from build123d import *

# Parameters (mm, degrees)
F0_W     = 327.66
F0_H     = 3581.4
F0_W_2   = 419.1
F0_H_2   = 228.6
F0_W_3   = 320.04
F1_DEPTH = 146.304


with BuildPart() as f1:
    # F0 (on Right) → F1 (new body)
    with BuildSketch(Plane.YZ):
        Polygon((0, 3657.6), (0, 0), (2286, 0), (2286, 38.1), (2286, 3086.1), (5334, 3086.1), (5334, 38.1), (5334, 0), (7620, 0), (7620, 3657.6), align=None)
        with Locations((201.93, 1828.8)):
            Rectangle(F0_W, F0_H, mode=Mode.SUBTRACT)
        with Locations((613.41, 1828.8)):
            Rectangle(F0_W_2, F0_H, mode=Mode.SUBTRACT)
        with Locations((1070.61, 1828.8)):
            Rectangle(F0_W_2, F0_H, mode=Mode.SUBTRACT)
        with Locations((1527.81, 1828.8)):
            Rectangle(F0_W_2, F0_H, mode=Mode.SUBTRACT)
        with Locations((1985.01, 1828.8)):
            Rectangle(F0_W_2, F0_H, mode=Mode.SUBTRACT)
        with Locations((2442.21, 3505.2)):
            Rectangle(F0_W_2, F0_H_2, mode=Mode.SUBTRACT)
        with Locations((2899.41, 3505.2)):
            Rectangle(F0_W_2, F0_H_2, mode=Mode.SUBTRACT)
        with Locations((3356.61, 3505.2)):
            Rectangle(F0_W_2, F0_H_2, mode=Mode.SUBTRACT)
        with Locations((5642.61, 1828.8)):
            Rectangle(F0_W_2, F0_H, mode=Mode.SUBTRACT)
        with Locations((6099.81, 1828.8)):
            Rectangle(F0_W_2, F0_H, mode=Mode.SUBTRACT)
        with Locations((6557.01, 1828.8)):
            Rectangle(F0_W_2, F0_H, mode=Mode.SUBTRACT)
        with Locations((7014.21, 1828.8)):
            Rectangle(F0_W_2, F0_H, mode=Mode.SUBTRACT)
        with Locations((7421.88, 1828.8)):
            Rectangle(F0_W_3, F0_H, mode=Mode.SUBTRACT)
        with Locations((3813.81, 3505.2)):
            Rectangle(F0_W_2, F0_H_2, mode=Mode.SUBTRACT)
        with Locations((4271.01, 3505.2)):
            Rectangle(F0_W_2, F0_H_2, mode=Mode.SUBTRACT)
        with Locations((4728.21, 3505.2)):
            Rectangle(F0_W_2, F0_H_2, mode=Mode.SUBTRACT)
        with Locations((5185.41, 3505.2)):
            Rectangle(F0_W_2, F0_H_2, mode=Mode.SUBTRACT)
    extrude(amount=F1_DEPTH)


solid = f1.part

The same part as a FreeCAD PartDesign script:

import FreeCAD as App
import Part
import Sketcher
from FreeCAD import Vector
Q = App.Units.Quantity


def add_polygon(sketch, points):
    """Adds a closed chain of lines whose ends are joined by coincident constraints."""
    first, n = sketch.GeometryCount, len(points)
    for a, b in zip(points, points[1:] + points[:1]):
        sketch.addGeometry(Part.LineSegment(App.Vector(*a, 0), App.Vector(*b, 0)), False)
    for i in range(n):
        sketch.addConstraint(Sketcher.Constraint("Coincident", first + i, 2, first + (i + 1) % n, 1))

doc = App.newDocument("Part")
params = doc.addObject("Spreadsheet::Sheet", "Params")
for row, (alias, value) in enumerate([
    ("sketch1_width", "90 in"),
    ("sketch1_width2", "120 in"),
    ("sketch1_height", "144 in"),
    ("sketch1_height2", "141 in"),
    ("sketch1_height3", "9 in"),
    ("pad1_length", "5.76 in"),
], start=1):
    params.set(f"A{row}", alias)
    params.set(f"B{row}", "=" + value)
    params.setAlias(f"B{row}", alias)

body = doc.addObject("PartDesign::Body", "Body")

sketch1 = body.newObject("Sketcher::SketchObject", "Sketch")
sketch1.AttachmentSupport = (doc.getObject("YZ_Plane"), [""])
sketch1.MapMode = "FlatFace"
add_polygon(sketch1, [(0, 3658), (0, 0), (2286, 0), (2286, 3086), (5334, 3086), (5334, 0), (7620, 0), (7620, 3658)])
add_polygon(sketch1, [(366, 38), (38, 38), (38, 3620), (366, 3620)])
add_polygon(sketch1, [(823, 38), (404, 38), (404, 3620), (823, 3620)])
add_polygon(sketch1, [(1280, 38), (861, 38), (861, 3620), (1280, 3620)])
add_polygon(sketch1, [(1737, 38), (1318, 38), (1318, 3620), (1737, 3620)])
add_polygon(sketch1, [(2195, 38), (1775, 38), (1775, 3620), (2195, 3620)])
add_polygon(sketch1, [(2652, 3391), (2233, 3391), (2233, 3620), (2652, 3620)])
add_polygon(sketch1, [(3109, 3391), (2690, 3391), (2690, 3620), (3109, 3620)])
add_polygon(sketch1, [(3566, 3391), (3147, 3391), (3147, 3620), (3566, 3620)])
add_polygon(sketch1, [(5852, 38), (5433, 38), (5433, 3620), (5852, 3620)])
add_polygon(sketch1, [(6309, 38), (5890, 38), (5890, 3620), (6309, 3620)])
add_polygon(sketch1, [(6767, 38), (6347, 38), (6347, 3620), (6767, 3620)])
add_polygon(sketch1, [(7224, 38), (6805, 38), (6805, 3620), (7224, 3620)])
add_polygon(sketch1, [(7582, 38), (7262, 38), (7262, 3620), (7582, 3620)])
add_polygon(sketch1, [(4023, 3391), (3604, 3391), (3604, 3620), (4023, 3620)])
add_polygon(sketch1, [(4481, 3391), (4061, 3391), (4061, 3620), (4481, 3620)])
add_polygon(sketch1, [(4938, 3391), (4519, 3391), (4519, 3620), (4938, 3620)])
add_polygon(sketch1, [(5395, 3391), (4976, 3391), (4976, 3620), (5395, 3620)])
sketch1.addConstraint(Sketcher.Constraint("Vertical", 0))
sketch1.addConstraint(Sketcher.Constraint("Horizontal", 1))
sketch1.addConstraint(Sketcher.Constraint("Vertical", 2))
sketch1.addConstraint(Sketcher.Constraint("Horizontal", 3))
sketch1.addConstraint(Sketcher.Constraint("Vertical", 4))
sketch1.addConstraint(Sketcher.Constraint("Horizontal", 5))
sketch1.addConstraint(Sketcher.Constraint("Vertical", 6))
sketch1.addConstraint(Sketcher.Constraint("Horizontal", 7))
sketch1.addConstraint(Sketcher.Constraint("Horizontal", 8))
sketch1.addConstraint(Sketcher.Constraint("Vertical", 9))
sketch1.addConstraint(Sketcher.Constraint("Horizontal", 10))
sketch1.addConstraint(Sketcher.Constraint("Vertical", 11))
sketch1.addConstraint(Sketcher.Constraint("Horizontal", 12))
sketch1.addConstraint(Sketcher.Constraint("Vertical", 13))
sketch1.addConstraint(Sketcher.Constraint("Horizontal", 14))
sketch1.addConstraint(Sketcher.Constraint("Vertical", 15))
sketch1.addConstraint(Sketcher.Constraint("Horizontal", 16))
sketch1.addConstraint(Sketcher.Constraint("Vertical", 17))
sketch1.addConstraint(Sketcher.Constraint("Horizontal", 18))
sketch1.addConstraint(Sketcher.Constraint("Vertical", 19))
sketch1.addConstraint(Sketcher.Constraint("Horizontal", 20))
sketch1.addConstraint(Sketcher.Constraint("Vertical", 21))
sketch1.addConstraint(Sketcher.Constraint("Horizontal", 22))
sketch1.addConstraint(Sketcher.Constraint("Vertical", 23))
sketch1.addConstraint(Sketcher.Constraint("Horizontal", 24))
sketch1.addConstraint(Sketcher.Constraint("Vertical", 25))
sketch1.addConstraint(Sketcher.Constraint("Horizontal", 26))
sketch1.addConstraint(Sketcher.Constraint("Vertical", 27))
sketch1.addConstraint(Sketcher.Constraint("Horizontal", 28))
sketch1.addConstraint(Sketcher.Constraint("Vertical", 29))
sketch1.addConstraint(Sketcher.Constraint("Horizontal", 30))
sketch1.addConstraint(Sketcher.Constraint("Vertical", 31))
sketch1.addConstraint(Sketcher.Constraint("Horizontal", 32))
sketch1.addConstraint(Sketcher.Constraint("Vertical", 33))
sketch1.addConstraint(Sketcher.Constraint("Horizontal", 34))
sketch1.addConstraint(Sketcher.Constraint("Vertical", 35))
sketch1.addConstraint(Sketcher.Constraint("Horizontal", 36))
sketch1.addConstraint(Sketcher.Constraint("Vertical", 37))
sketch1.addConstraint(Sketcher.Constraint("Horizontal", 38))
sketch1.addConstraint(Sketcher.Constraint("Vertical", 39))
sketch1.addConstraint(Sketcher.Constraint("Horizontal", 40))
sketch1.addConstraint(Sketcher.Constraint("Vertical", 41))
sketch1.addConstraint(Sketcher.Constraint("Horizontal", 42))
sketch1.addConstraint(Sketcher.Constraint("Vertical", 43))
sketch1.addConstraint(Sketcher.Constraint("Horizontal", 44))
sketch1.addConstraint(Sketcher.Constraint("Vertical", 45))
sketch1.addConstraint(Sketcher.Constraint("Horizontal", 46))
sketch1.addConstraint(Sketcher.Constraint("Vertical", 47))
sketch1.addConstraint(Sketcher.Constraint("Horizontal", 48))
sketch1.addConstraint(Sketcher.Constraint("Vertical", 49))
sketch1.addConstraint(Sketcher.Constraint("Horizontal", 50))
sketch1.addConstraint(Sketcher.Constraint("Vertical", 51))
sketch1.addConstraint(Sketcher.Constraint("Horizontal", 52))
sketch1.addConstraint(Sketcher.Constraint("Vertical", 53))
sketch1.addConstraint(Sketcher.Constraint("Horizontal", 54))
sketch1.addConstraint(Sketcher.Constraint("Vertical", 55))
sketch1.addConstraint(Sketcher.Constraint("Horizontal", 56))
sketch1.addConstraint(Sketcher.Constraint("Vertical", 57))
sketch1.addConstraint(Sketcher.Constraint("Horizontal", 58))
sketch1.addConstraint(Sketcher.Constraint("Vertical", 59))
sketch1.addConstraint(Sketcher.Constraint("Horizontal", 60))
sketch1.addConstraint(Sketcher.Constraint("Vertical", 61))
sketch1.addConstraint(Sketcher.Constraint("Horizontal", 62))
sketch1.addConstraint(Sketcher.Constraint("Vertical", 63))
sketch1.addConstraint(Sketcher.Constraint("Horizontal", 64))
sketch1.addConstraint(Sketcher.Constraint("Vertical", 65))
sketch1.addConstraint(Sketcher.Constraint("Horizontal", 66))
sketch1.addConstraint(Sketcher.Constraint("Vertical", 67))
sketch1.addConstraint(Sketcher.Constraint("Horizontal", 68))
sketch1.addConstraint(Sketcher.Constraint("Vertical", 69))
sketch1.addConstraint(Sketcher.Constraint("Horizontal", 70))
sketch1.addConstraint(Sketcher.Constraint("Vertical", 71))
sketch1.addConstraint(Sketcher.Constraint("Horizontal", 72))
sketch1.addConstraint(Sketcher.Constraint("Vertical", 73))
sketch1.addConstraint(Sketcher.Constraint("Horizontal", 74))
sketch1.addConstraint(Sketcher.Constraint("Vertical", 75))
sketch1.addConstraint(Sketcher.Constraint("Coincident", 0, 2, -1, 1))
sketch1.addConstraint(Sketcher.Constraint("PointOnObject", 4, 2, -1))
sketch1.addConstraint(Sketcher.Constraint("Horizontal", 11, 2, 12, 2))
sketch1.addConstraint(Sketcher.Constraint("Horizontal", 10, 2, 13, 2))
sketch1.addConstraint(Sketcher.Constraint("Horizontal", 15, 2, 16, 2))
sketch1.addConstraint(Sketcher.Constraint("Horizontal", 14, 2, 17, 2))
sketch1.addConstraint(Sketcher.Constraint("Horizontal", 19, 2, 20, 2))
sketch1.addConstraint(Sketcher.Constraint("Horizontal", 18, 2, 21, 2))
sketch1.addConstraint(Sketcher.Constraint("Horizontal", 23, 2, 24, 2))
sketch1.addConstraint(Sketcher.Constraint("Horizontal", 22, 2, 25, 2))
sketch1.addConstraint(Sketcher.Constraint("Horizontal", 26, 2, 29, 2))
sketch1.addConstraint(Sketcher.Constraint("Horizontal", 31, 2, 32, 2))
sketch1.addConstraint(Sketcher.Constraint("Horizontal", 30, 2, 33, 2))
sketch1.addConstraint(Sketcher.Constraint("Horizontal", 35, 2, 36, 2))
sketch1.addConstraint(Sketcher.Constraint("Horizontal", 34, 2, 37, 2))
sketch1.addConstraint(Sketcher.Constraint("Horizontal", 27, 2, 40, 2))
sketch1.addConstraint(Sketcher.Constraint("Horizontal", 38, 2, 41, 2))
sketch1.addConstraint(Sketcher.Constraint("Horizontal", 43, 2, 44, 2))
sketch1.addConstraint(Sketcher.Constraint("Horizontal", 42, 2, 45, 2))
sketch1.addConstraint(Sketcher.Constraint("Horizontal", 47, 2, 48, 2))
sketch1.addConstraint(Sketcher.Constraint("Horizontal", 46, 2, 49, 2))
sketch1.addConstraint(Sketcher.Constraint("Horizontal", 51, 2, 52, 2))
sketch1.addConstraint(Sketcher.Constraint("Horizontal", 50, 2, 53, 2))
sketch1.addConstraint(Sketcher.Constraint("Horizontal", 55, 2, 56, 2))
sketch1.addConstraint(Sketcher.Constraint("Horizontal", 54, 2, 57, 2))
sketch1.addConstraint(Sketcher.Constraint("Horizontal", 39, 2, 60, 2))
sketch1.addConstraint(Sketcher.Constraint("Horizontal", 58, 2, 61, 2))
sketch1.addConstraint(Sketcher.Constraint("Horizontal", 63, 2, 64, 2))
sketch1.addConstraint(Sketcher.Constraint("Horizontal", 62, 2, 65, 2))
sketch1.addConstraint(Sketcher.Constraint("Horizontal", 67, 2, 68, 2))
sketch1.addConstraint(Sketcher.Constraint("Horizontal", 66, 2, 69, 2))
sketch1.addConstraint(Sketcher.Constraint("Horizontal", 71, 2, 72, 2))
sketch1.addConstraint(Sketcher.Constraint("Horizontal", 70, 2, 73, 2))
sketch1.addConstraint(Sketcher.Constraint("Equal", 1, 5))
sketch1.addConstraint(Sketcher.Constraint("Equal", 14, 16))
sketch1.addConstraint(Sketcher.Constraint("Equal", 18, 20))
sketch1.addConstraint(Sketcher.Constraint("Equal", 22, 24))
sketch1.addConstraint(Sketcher.Constraint("Equal", 26, 28))
sketch1.addConstraint(Sketcher.Constraint("Equal", 30, 32))
sketch1.addConstraint(Sketcher.Constraint("Equal", 34, 36))
sketch1.addConstraint(Sketcher.Constraint("Equal", 38, 40))
sketch1.addConstraint(Sketcher.Constraint("Equal", 42, 44))
sketch1.addConstraint(Sketcher.Constraint("Equal", 46, 48))
sketch1.addConstraint(Sketcher.Constraint("Equal", 50, 52))
sketch1.addConstraint(Sketcher.Constraint("Equal", 54, 60))
sketch1.addConstraint(Sketcher.Constraint("Equal", 62, 64))
sketch1.addConstraint(Sketcher.Constraint("Equal", 66, 68))
sketch1.addConstraint(Sketcher.Constraint("Equal", 70, 72))
sketch1.addConstraint(Sketcher.Constraint("DistanceX", 1, 1, 1, 2, Q("90 in")))
sketch1.addConstraint(Sketcher.Constraint("DistanceX", 3, 1, 3, 2, Q("120 in")))
sketch1.addConstraint(Sketcher.Constraint("DistanceY", 0, 2, 0, 1, Q("144 in")))
sketch1.addConstraint(Sketcher.Constraint("DistanceY", 9, 1, 9, 2, Q("141 in")))
sketch1.addConstraint(Sketcher.Constraint("DistanceY", 29, 1, 29, 2, Q("9 in")))
sketch1.addConstraint(Sketcher.Constraint("DistanceX", 8, 2, 8, 1, Q("12.9 in")))
sketch1.addConstraint(Sketcher.Constraint("DistanceX", 12, 2, 12, 1, Q("16.5 in")))
sketch1.addConstraint(Sketcher.Constraint("DistanceX", 56, 2, 56, 1, Q("12.6 in")))
sketch1.addConstraint(Sketcher.Constraint("DistanceY", 2, 1, 2, 2, Q("121.5 in")))
sketch1.addConstraint(Sketcher.Constraint("DistanceX", -1, 1, 8, 2, Q("1.5 in")))
sketch1.addConstraint(Sketcher.Constraint("DistanceY", -1, 1, 8, 2, Q("1.5 in")))
sketch1.addConstraint(Sketcher.Constraint("DistanceX", -1, 1, 12, 2, Q("15.9 in")))
sketch1.addConstraint(Sketcher.Constraint("DistanceX", -1, 1, 16, 2, Q("33.9 in")))
sketch1.addConstraint(Sketcher.Constraint("DistanceX", -1, 1, 20, 2, Q("51.9 in")))
sketch1.addConstraint(Sketcher.Constraint("DistanceX", -1, 1, 24, 2, Q("69.9 in")))
sketch1.addConstraint(Sketcher.Constraint("DistanceX", -1, 1, 28, 2, Q("87.9 in")))
sketch1.addConstraint(Sketcher.Constraint("DistanceX", -1, 1, 32, 2, Q("105.9 in")))
sketch1.addConstraint(Sketcher.Constraint("DistanceX", -1, 1, 36, 2, Q("123.9 in")))
sketch1.addConstraint(Sketcher.Constraint("DistanceX", -1, 1, 40, 2, Q("213.9 in")))
sketch1.addConstraint(Sketcher.Constraint("DistanceX", -1, 1, 44, 2, Q("231.9 in")))
sketch1.addConstraint(Sketcher.Constraint("DistanceX", -1, 1, 48, 2, Q("249.9 in")))
sketch1.addConstraint(Sketcher.Constraint("DistanceX", -1, 1, 52, 2, Q("267.9 in")))
sketch1.addConstraint(Sketcher.Constraint("DistanceX", -1, 1, 56, 2, Q("285.9 in")))
sketch1.addConstraint(Sketcher.Constraint("DistanceX", -1, 1, 60, 2, Q("141.9 in")))
sketch1.addConstraint(Sketcher.Constraint("DistanceX", -1, 1, 64, 2, Q("159.9 in")))
sketch1.addConstraint(Sketcher.Constraint("DistanceX", -1, 1, 68, 2, Q("177.9 in")))
sketch1.addConstraint(Sketcher.Constraint("DistanceX", -1, 1, 72, 2, Q("195.9 in")))
sketch1.setExpression("Constraints[200]", "Params.sketch1_width")
sketch1.setExpression("Constraints[201]", "Params.sketch1_width2")
sketch1.setExpression("Constraints[202]", "Params.sketch1_height")
sketch1.setExpression("Constraints[203]", "Params.sketch1_height2")
sketch1.setExpression("Constraints[204]", "Params.sketch1_height3")
pad1 = body.newObject("PartDesign::Pad", "Pad")
pad1.Profile = sketch1
pad1.setExpression("Length", "Params.pad1_length")

doc.recompute()
